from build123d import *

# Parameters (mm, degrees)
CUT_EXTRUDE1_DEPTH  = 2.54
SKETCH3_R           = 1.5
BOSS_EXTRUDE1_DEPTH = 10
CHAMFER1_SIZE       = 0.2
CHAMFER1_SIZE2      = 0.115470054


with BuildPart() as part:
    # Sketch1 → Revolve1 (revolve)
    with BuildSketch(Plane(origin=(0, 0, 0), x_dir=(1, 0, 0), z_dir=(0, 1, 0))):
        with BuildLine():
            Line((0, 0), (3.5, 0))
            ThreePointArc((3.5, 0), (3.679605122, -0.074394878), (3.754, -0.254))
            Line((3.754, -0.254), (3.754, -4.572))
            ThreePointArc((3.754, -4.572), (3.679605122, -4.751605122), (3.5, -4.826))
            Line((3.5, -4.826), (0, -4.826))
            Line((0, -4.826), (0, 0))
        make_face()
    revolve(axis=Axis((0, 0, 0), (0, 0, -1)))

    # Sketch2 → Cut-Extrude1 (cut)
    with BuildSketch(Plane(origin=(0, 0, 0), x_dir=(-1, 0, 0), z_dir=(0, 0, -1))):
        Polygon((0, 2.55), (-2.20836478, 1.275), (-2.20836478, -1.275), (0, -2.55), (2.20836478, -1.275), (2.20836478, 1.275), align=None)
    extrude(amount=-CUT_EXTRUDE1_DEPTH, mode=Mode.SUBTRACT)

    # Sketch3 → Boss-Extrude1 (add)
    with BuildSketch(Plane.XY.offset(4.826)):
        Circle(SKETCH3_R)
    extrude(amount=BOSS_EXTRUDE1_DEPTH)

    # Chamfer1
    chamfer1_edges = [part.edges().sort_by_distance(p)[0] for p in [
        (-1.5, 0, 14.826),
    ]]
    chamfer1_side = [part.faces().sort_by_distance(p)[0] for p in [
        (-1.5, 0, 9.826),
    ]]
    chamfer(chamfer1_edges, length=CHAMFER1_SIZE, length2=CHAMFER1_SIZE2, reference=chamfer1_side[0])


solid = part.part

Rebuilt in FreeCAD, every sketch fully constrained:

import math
import FreeCAD as App
import Part
import Sketcher
from FreeCAD import Vector
Q = App.Units.Quantity


def edges_at(feature, points):
    """Names of the edges that pass closest to the given points."""
    edges = feature.Shape.Edges
    near = lambda p: min(range(len(edges)), key=lambda i: edges[i].distToShape(Part.Vertex(*p))[0])
    return sorted({f"Edge{near(p) + 1}" for p in points})


def add_polygon(sketch, points):
    """Adds a closed chain of lines whose ends are joined by coincident constraints."""
    first, n = sketch.GeometryCount, len(points)
    for a, b in zip(points, points[1:] + points[:1]):
        sketch.addGeometry(Part.LineSegment(App.Vector(*a, 0), App.Vector(*b, 0)), False)
    for i in range(n):
        sketch.addConstraint(Sketcher.Constraint("Coincident", first + i, 2, first + (i + 1) % n, 1))

doc = App.newDocument("Part")
body = doc.addObject("PartDesign::Body", "Body")

sketch1 = body.newObject("Sketcher::SketchObject", "Sketch")
sketch1.AttachmentSupport = (doc.getObject("XZ_Plane"), [""])
sketch1.MapMode = "FlatFace"
sketch1.addGeometry(Part.LineSegment(Vector(3.5, 0, 0), Vector(0, 0, 0)), False)
sketch1.addGeometry(Part.LineSegment(Vector(0, 0, 0), Vector(0, 4.83, 0)), False)
sketch1.addGeometry(Part.LineSegment(Vector(0, 4.83, 0), Vector(3.5, 4.83, 0)), False)
sketch1.addGeometry(Part.ArcOfCircle(Part.Circle(Vector(3.5, 4.57, 0), Vector(0, 0, 1), 0.25), math.radians(0), math.radians(90)), False)
sketch1.addGeometry(Part.LineSegment(Vector(3.75, 4.57, 0), Vector(3.75, 0.25, 0)), False)
sketch1.addGeometry(Part.ArcOfCircle(Part.Circle(Vector(3.5, 0.25, 0), Vector(0, 0, 1), 0.25), math.radians(-90), math.radians(0)), False)
sketch1.addConstraint(Sketcher.Constraint("Coincident", 0, 2, 1, 1))
sketch1.addConstraint(Sketcher.Constraint("Coincident", 1, 2, 2, 1))
sketch1.addConstraint(Sketcher.Constraint("Tangent", 2, 2, 3, 2))
sketch1.addConstraint(Sketcher.Constraint("Tangent", 3, 1, 4, 1))
sketch1.addConstraint(Sketcher.Constraint("Tangent", 4, 2, 5, 2))
sketch1.addConstraint(Sketcher.Constraint("Tangent", 5, 1, 0, 1))
sketch1.addConstraint(Sketcher.Constraint("Horizontal", 0))
sketch1.addConstraint(Sketcher.Constraint("Vertical", 1))
sketch1.addConstraint(Sketcher.Constraint("Horizontal", 2))
sketch1.addConstraint(Sketcher.Constraint("Vertical", 4))
sketch1.addConstraint(Sketcher.Constraint("Coincident", 0, 2, -1, 1))
sketch1.addConstraint(Sketcher.Constraint("Equal", 3, 5))
sketch1.addConstraint(Sketcher.Constraint("DistanceX", 0, 2, 0, 1, Q("3.5 mm")))
sketch1.addConstraint(Sketcher.Constraint("Radius", 3, Q("0.254 mm")))
sketch1.addConstraint(Sketcher.Constraint("DistanceY", 1, 1, 1, 2, Q("4.826 mm")))
revolution = body.newObject("PartDesign::Revolution", "Revolution")
revolution.Profile = sketch1
revolution.ReferenceAxis = (sketch1, ["V_Axis"])
revolution.Angle = 360

sketch2 = body.newObject("Sketcher::SketchObject", "Sketch001")
sketch2.AttachmentSupport = (doc.getObject("XY_Plane"), [""])
sketch2.MapMode = "FlatFace"
add_polygon(sketch2, [(0, 2.5), (2.2, 1.3), (2.2, -1.3), (0, -2.5), (-2.2, -1.3), (-2.2, 1.3)])
sketch2.addConstraint(Sketcher.Constraint("Vertical", 1))
sketch2.addConstraint(Sketcher.Constraint("Vertical", 4))
sketch2.addConstraint(Sketcher.Constraint("Symmetric", 0, 2, 3, 2, -1, 1))
sketch2.addConstraint(Sketcher.Constraint("Symmetric", 2, 2, 5, 2, -1, 1))
sketch2.addConstraint(Sketcher.Constraint("PointOnObject", 2, 2, -2))
sketch2.addConstraint(Sketcher.Constraint("Parallel", 2, 5))
sketch2.addConstraint(Sketcher.Constraint("Horizontal", 1, 2, 3, 2))
sketch2.addConstraint(Sketcher.Constraint("Angle", 0, Q("-30 deg")))
sketch2.addConstraint(Sketcher.Constraint("DistanceY", 1, 2, 1, 1, Q("2.55 mm")))
sketch2.addConstraint(Sketcher.Constraint("DistanceY", 2, 2, 5, 2, Q("5.1 mm")))
pocket1 = body.newObject("PartDesign::Pocket", "Pocket")
pocket1.Profile = sketch2
pocket1.Length = 2.54
pocket1.Reversed = True

sketch3 = body.newObject("Sketcher::SketchObject", "Sketch002")
sketch3.AttachmentSupport = (doc.getObject("XY_Plane"), [""])
sketch3.MapMode = "FlatFace"
sketch3.AttachmentOffset = App.Placement(Vector(0, 0, 4.826), App.Rotation())
sketch3.addGeometry(Part.Circle(Vector(0, 0, 0), Vector(0, 0, 1), 1.5), False)
sketch3.addConstraint(Sketcher.Constraint("Coincident", 0, 3, -1, 1))
sketch3.addConstraint(Sketcher.Constraint("Diameter", 0, Q("3 mm")))
pad1 = body.newObject("PartDesign::Pad", "Pad")
pad1.Profile = sketch3
pad1.Length = 10
doc.recompute()

chamfer = body.newObject("PartDesign::Chamfer", "Chamfer")
chamfer.Base = (pad1, edges_at(pad1, [(-1.5, 0, 14.826)]))
chamfer.ChamferType = "Two distances"
chamfer.Size = 0.2
chamfer.Size2 = 0.11547

doc.recompute()
